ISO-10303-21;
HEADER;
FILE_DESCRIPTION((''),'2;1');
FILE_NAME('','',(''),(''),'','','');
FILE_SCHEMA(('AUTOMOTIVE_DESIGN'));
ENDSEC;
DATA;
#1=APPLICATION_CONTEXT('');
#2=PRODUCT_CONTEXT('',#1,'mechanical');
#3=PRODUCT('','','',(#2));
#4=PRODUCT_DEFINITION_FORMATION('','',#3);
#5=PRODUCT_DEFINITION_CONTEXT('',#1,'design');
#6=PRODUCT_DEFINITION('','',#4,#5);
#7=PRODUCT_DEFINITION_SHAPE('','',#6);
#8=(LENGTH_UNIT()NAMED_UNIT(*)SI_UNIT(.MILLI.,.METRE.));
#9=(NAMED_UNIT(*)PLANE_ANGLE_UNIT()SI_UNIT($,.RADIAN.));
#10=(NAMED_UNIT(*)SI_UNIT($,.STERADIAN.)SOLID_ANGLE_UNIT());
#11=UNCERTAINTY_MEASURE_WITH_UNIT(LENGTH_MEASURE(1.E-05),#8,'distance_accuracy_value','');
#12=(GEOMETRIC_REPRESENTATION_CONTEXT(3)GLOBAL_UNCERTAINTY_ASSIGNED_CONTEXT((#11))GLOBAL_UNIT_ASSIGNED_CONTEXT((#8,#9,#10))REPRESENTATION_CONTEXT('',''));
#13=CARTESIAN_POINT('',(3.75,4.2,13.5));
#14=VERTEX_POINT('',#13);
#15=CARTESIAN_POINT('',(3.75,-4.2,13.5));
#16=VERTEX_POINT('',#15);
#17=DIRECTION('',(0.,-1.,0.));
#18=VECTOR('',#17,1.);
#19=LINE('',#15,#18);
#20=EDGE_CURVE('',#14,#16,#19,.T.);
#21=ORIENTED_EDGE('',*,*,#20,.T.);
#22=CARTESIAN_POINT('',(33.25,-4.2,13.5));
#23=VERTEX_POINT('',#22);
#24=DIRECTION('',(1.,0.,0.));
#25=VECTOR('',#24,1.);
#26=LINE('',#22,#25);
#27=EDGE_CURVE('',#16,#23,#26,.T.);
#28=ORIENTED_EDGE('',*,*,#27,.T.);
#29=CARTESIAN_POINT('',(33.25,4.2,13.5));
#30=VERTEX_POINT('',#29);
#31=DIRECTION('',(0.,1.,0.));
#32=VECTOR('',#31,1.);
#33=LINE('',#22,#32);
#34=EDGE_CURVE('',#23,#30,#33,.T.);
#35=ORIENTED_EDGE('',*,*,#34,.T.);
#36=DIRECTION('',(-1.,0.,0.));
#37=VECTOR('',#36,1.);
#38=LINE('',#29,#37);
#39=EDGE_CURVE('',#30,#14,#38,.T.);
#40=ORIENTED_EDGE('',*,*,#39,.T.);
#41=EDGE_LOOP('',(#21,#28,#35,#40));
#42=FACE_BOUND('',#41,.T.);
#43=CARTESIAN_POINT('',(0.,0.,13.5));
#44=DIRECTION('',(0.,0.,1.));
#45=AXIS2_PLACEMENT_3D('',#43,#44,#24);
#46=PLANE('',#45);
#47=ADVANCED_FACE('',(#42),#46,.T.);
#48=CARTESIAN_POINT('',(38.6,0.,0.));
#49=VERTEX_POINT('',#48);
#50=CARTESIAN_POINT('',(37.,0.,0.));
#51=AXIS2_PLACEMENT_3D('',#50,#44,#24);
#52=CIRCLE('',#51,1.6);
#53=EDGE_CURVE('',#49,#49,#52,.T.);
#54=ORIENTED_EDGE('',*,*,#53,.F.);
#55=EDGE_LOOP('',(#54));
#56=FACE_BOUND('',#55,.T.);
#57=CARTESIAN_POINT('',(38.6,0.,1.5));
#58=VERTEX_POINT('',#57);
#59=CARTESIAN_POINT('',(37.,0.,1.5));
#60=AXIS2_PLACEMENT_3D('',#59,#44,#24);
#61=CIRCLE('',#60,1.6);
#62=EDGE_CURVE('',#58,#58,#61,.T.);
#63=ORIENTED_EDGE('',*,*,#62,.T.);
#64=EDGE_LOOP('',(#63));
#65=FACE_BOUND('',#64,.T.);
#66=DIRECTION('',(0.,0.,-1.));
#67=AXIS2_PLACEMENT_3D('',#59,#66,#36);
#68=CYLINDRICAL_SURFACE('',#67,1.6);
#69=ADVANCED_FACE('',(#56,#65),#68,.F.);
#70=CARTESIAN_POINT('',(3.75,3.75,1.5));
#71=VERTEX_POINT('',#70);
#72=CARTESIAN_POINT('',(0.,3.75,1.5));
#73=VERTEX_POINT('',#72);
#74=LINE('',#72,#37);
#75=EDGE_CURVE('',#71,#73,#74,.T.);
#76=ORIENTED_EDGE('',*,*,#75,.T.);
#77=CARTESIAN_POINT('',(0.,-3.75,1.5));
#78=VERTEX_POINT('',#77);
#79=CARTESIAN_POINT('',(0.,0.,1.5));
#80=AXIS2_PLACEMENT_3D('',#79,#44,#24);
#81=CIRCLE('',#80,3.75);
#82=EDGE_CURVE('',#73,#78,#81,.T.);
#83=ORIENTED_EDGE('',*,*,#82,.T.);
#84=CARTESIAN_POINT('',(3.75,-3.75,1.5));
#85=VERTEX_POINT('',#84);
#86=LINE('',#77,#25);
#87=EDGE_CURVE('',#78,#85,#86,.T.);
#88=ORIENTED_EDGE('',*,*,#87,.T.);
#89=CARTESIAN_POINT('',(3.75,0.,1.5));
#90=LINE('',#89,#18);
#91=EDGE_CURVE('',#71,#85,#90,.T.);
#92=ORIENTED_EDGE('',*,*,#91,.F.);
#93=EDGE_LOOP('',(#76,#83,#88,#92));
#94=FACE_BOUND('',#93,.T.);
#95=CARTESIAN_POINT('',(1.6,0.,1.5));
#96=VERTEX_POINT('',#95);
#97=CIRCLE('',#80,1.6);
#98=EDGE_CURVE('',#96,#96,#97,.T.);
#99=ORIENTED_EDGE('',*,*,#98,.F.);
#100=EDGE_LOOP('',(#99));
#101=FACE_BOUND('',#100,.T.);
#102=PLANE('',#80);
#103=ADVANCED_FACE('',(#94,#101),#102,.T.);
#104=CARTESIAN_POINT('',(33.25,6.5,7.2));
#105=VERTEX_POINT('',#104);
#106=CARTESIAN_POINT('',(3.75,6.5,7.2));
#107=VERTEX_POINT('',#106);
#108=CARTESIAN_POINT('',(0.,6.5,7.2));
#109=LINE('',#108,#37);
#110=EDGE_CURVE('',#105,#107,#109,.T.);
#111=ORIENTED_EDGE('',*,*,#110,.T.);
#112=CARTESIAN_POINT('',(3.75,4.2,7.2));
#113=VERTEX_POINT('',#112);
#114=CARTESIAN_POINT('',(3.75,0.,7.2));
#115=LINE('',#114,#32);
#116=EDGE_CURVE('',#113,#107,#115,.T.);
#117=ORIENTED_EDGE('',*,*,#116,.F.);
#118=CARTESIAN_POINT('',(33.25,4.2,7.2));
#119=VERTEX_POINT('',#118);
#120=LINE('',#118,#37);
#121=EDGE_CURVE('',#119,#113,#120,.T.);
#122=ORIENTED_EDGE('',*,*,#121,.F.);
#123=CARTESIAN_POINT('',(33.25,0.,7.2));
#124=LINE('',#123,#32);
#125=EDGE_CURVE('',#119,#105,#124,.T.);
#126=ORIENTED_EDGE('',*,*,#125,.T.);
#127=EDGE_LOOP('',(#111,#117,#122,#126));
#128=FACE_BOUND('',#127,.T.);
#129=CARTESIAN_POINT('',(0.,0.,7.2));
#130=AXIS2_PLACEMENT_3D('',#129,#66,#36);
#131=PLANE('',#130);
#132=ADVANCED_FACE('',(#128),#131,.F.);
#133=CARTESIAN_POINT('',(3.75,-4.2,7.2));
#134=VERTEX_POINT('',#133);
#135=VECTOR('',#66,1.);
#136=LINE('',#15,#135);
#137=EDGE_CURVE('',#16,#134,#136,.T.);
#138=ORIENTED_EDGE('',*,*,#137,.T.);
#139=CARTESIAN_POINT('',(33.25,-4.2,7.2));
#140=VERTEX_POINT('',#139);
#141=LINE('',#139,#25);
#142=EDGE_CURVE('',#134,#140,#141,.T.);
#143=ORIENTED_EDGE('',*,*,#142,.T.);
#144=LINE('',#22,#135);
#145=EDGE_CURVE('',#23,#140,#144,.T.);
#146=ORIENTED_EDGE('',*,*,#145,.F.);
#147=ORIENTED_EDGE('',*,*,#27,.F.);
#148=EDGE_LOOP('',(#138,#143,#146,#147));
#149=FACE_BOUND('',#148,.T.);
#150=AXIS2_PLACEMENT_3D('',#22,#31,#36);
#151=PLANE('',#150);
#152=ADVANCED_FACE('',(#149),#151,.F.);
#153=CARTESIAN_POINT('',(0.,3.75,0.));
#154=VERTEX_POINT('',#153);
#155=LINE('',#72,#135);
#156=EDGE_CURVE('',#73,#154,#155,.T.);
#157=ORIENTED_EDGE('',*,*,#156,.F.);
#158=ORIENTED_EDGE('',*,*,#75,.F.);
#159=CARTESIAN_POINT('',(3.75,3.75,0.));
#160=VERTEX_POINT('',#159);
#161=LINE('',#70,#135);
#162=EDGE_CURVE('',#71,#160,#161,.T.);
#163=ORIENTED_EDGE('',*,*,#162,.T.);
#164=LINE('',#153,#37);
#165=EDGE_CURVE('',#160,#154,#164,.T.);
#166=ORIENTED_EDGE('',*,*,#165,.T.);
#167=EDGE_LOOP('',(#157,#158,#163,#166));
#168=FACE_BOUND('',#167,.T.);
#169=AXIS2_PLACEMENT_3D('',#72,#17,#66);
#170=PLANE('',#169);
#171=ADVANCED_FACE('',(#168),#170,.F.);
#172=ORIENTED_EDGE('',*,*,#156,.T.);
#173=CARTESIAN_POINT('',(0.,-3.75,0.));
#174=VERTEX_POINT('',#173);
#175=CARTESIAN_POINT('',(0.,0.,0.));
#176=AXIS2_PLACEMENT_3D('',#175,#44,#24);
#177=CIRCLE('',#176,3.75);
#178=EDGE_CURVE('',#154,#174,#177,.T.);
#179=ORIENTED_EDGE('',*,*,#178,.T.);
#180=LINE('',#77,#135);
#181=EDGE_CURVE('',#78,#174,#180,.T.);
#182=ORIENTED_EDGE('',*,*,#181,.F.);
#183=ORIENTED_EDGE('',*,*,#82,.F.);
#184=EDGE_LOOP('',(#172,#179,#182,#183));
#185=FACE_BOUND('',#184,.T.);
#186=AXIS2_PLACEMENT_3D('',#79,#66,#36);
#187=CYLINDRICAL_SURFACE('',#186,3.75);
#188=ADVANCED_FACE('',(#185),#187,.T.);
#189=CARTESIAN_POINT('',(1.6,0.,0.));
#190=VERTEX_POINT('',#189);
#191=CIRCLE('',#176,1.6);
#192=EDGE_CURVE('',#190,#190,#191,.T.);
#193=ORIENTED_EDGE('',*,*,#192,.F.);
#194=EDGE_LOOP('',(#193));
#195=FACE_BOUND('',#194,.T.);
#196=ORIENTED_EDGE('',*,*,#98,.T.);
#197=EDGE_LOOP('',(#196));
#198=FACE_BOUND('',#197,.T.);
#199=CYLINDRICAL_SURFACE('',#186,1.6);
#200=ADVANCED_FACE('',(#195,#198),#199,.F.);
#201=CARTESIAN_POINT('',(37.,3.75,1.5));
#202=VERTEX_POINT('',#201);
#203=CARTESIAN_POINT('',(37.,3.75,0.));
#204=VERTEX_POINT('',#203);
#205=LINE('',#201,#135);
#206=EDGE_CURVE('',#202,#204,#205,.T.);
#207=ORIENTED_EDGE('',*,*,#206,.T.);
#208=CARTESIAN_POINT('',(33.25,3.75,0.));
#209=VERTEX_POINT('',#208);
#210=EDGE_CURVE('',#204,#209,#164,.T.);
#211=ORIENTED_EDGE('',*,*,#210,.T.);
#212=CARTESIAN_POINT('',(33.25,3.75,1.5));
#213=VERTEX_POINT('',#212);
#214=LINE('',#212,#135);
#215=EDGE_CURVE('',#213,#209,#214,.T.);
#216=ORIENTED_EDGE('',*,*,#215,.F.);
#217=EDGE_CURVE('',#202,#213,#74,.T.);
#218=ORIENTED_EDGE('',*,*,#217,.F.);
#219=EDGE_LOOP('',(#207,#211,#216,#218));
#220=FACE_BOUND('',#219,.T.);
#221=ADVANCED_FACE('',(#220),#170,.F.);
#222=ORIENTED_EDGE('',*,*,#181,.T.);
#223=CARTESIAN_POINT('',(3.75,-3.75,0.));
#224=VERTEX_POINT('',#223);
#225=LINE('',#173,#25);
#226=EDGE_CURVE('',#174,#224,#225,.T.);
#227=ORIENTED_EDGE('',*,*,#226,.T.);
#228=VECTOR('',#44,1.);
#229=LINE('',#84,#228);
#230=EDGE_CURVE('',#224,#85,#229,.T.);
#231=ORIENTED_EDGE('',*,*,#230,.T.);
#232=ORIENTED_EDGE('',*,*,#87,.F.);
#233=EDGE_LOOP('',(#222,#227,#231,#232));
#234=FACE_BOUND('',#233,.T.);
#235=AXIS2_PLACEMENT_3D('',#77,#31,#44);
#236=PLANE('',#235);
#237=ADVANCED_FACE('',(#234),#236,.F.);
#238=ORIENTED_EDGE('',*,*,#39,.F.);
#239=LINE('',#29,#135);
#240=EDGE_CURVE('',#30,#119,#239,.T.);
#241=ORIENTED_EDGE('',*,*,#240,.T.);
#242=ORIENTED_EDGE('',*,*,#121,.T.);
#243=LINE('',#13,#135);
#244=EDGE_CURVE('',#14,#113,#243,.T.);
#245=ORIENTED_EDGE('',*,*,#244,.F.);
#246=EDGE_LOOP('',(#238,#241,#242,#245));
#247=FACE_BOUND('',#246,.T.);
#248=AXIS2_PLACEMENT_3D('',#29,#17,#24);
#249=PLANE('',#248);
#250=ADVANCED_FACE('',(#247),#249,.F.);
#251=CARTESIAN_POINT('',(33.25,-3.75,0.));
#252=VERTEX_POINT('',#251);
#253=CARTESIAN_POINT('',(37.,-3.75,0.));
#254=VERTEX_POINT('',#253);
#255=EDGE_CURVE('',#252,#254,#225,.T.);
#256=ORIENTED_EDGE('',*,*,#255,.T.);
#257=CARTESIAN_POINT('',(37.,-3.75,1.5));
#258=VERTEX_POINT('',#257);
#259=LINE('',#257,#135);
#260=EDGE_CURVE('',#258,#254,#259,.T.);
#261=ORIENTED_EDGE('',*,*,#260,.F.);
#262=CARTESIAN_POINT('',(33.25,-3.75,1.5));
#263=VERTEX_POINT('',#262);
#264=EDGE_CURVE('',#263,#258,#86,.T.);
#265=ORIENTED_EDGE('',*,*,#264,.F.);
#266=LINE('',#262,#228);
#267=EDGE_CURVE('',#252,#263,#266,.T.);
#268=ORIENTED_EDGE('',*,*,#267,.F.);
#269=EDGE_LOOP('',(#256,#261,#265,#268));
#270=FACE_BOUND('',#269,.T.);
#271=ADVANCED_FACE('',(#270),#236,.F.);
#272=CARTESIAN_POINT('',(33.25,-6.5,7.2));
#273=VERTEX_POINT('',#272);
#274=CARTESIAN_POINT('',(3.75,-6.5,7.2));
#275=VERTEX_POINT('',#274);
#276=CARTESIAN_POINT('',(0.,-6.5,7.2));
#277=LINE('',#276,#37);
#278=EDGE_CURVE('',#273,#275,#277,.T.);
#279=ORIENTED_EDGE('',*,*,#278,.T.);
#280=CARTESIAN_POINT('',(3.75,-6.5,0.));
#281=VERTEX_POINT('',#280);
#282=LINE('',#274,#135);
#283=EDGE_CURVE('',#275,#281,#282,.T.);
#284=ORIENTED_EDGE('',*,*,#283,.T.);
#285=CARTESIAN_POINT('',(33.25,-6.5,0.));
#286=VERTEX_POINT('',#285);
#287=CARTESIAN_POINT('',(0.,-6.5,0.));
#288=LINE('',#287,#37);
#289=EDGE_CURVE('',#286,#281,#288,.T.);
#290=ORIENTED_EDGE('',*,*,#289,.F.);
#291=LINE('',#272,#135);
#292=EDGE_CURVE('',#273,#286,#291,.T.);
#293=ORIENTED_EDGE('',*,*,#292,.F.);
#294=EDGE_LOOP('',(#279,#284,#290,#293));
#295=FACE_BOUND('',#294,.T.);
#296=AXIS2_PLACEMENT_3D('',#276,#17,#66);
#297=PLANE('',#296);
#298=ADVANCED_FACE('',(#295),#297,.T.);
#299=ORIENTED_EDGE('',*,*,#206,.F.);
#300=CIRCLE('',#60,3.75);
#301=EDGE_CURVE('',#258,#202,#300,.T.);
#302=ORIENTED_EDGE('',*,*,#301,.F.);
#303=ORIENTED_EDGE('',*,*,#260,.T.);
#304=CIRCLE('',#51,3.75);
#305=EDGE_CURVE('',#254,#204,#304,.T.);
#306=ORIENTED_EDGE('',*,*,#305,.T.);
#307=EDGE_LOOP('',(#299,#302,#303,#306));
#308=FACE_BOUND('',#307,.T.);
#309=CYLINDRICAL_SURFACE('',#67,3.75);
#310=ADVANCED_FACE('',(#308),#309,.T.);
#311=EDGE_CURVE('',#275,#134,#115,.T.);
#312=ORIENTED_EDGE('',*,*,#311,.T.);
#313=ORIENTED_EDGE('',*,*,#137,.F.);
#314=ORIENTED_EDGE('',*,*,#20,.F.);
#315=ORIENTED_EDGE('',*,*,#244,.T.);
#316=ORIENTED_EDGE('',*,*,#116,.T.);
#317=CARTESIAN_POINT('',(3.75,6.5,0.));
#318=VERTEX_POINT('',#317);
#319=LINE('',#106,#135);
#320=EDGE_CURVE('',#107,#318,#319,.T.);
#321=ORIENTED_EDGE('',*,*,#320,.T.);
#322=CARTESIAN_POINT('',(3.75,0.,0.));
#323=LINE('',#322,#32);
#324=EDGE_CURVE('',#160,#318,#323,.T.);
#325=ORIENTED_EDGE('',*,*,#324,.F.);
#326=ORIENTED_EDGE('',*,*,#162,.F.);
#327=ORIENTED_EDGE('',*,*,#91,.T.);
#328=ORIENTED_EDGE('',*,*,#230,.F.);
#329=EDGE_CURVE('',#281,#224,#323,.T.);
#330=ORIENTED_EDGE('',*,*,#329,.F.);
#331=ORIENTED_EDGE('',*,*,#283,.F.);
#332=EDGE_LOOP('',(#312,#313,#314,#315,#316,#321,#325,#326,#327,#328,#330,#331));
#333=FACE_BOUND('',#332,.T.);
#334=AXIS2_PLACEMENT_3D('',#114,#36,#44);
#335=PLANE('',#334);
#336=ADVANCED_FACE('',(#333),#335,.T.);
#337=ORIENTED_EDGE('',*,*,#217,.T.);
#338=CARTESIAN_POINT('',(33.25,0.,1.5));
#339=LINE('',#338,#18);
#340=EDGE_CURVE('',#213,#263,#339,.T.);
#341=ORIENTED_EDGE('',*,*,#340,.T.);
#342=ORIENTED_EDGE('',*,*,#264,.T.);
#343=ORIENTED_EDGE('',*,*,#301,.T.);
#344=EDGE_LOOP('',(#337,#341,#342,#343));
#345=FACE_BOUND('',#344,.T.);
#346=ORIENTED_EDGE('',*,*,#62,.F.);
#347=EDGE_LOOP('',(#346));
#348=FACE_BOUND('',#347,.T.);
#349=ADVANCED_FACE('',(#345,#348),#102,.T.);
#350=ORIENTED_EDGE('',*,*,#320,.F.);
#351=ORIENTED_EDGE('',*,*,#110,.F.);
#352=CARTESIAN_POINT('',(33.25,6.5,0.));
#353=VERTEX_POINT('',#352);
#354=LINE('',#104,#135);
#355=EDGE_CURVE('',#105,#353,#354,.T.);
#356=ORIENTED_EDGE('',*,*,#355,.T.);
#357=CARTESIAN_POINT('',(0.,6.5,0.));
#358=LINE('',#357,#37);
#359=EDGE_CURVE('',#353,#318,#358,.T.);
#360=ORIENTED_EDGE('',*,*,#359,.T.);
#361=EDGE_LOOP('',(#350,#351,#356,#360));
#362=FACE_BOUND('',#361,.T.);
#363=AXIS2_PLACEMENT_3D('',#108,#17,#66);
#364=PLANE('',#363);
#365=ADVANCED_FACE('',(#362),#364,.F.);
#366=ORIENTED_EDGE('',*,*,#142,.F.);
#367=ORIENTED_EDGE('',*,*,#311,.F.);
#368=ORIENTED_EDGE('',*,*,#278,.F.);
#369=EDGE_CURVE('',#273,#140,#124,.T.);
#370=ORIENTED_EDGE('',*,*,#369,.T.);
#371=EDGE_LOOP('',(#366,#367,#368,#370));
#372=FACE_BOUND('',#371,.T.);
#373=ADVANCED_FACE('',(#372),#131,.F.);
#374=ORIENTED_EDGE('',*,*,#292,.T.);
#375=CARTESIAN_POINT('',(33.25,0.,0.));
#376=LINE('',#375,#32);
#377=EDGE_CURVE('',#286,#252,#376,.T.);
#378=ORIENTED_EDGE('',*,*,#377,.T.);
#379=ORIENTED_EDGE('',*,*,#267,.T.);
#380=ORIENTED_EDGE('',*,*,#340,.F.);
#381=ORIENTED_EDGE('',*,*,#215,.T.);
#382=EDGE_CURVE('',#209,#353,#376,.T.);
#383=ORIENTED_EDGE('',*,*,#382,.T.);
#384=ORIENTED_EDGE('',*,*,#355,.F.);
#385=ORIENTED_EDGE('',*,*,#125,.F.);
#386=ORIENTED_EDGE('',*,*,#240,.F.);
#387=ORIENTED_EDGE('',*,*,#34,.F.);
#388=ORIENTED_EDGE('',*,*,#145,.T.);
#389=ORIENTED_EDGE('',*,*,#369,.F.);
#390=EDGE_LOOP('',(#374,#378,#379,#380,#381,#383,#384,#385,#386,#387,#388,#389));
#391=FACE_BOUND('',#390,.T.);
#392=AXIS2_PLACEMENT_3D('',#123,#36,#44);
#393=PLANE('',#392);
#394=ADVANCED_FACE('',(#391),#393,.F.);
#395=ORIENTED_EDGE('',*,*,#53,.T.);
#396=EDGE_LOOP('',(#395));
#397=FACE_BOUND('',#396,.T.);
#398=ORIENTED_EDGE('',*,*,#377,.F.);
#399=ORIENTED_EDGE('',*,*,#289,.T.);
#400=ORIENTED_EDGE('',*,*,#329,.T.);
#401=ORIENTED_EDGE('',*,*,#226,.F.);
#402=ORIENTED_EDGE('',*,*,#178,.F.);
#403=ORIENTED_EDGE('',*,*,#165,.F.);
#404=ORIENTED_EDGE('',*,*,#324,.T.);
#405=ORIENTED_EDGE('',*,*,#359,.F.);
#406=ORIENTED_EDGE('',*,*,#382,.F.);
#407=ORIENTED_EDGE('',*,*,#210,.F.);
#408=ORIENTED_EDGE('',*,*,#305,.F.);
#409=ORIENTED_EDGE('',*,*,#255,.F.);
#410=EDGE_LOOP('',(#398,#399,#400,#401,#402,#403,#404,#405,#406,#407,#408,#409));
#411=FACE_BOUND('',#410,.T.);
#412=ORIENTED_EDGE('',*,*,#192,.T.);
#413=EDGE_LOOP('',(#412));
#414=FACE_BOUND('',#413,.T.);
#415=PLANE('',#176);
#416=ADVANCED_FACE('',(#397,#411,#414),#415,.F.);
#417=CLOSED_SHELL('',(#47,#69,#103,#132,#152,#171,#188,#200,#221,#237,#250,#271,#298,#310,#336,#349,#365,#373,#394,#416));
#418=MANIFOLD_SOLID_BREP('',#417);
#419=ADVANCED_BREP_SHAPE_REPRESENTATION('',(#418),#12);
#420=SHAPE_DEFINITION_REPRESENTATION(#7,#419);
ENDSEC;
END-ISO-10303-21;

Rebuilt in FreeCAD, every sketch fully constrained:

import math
import FreeCAD as App
import Part
import Sketcher

V = App.Vector
Q = App.Units.Quantity

doc = App.newDocument("Part")
body = doc.addObject("PartDesign::Body", "Body")

# Sketch on XY plane
sketch1 = body.newObject("Sketcher::SketchObject", "Sketch")
sketch1.AttachmentSupport = (doc.getObject("XY_Plane"), [""])
sketch1.MapMode = "FlatFace"
sketch1.addGeometry(Part.LineSegment(V(37, 3.75, 0), V(0, 3.75, 0)), False)
sketch1.addGeometry(Part.ArcOfCircle(Part.Circle(V(0, 0, 0), V(0, 0, 1), 3.75), math.radians(90), math.radians(270)), False)
sketch1.addGeometry(Part.LineSegment(V(0, -3.75, 0), V(37, -3.75, 0)), False)
sketch1.addGeometry(Part.ArcOfCircle(Part.Circle(V(37, 0, 0), V(0, 0, 1), 3.75), math.radians(-90), math.radians(90)), False)
sketch1.addGeometry(Part.Circle(V(37, 0, 0), V(0, 0, 1), 1.6), False)
sketch1.addGeometry(Part.Circle(V(0, 0, 0), V(0, 0, 1), 1.6), False)
sketch1.addConstraint(Sketcher.Constraint("Tangent", 0, 2, 1, 1))
sketch1.addConstraint(Sketcher.Constraint("Tangent", 1, 2, 2, 1))
sketch1.addConstraint(Sketcher.Constraint("Tangent", 2, 2, 3, 1))
sketch1.addConstraint(Sketcher.Constraint("Tangent", 3, 2, 0, 1))
sketch1.addConstraint(Sketcher.Constraint("Horizontal", 0))
sketch1.addConstraint(Sketcher.Constraint("Horizontal", 2))
sketch1.addConstraint(Sketcher.Constraint("Coincident", 1, 3, -1, 1))
sketch1.addConstraint(Sketcher.Constraint("Coincident", 5, 3, -1, 1))
sketch1.addConstraint(Sketcher.Constraint("Coincident", 4, 3, 3, 3))
sketch1.addConstraint(Sketcher.Constraint("Equal", 4, 5))
sketch1.addConstraint(Sketcher.Constraint("Diameter", 4, Q("3.2 mm")))
sketch1.addConstraint(Sketcher.Constraint("DistanceX", 0, 2, 0, 1, Q("37 mm")))
sketch1.addConstraint(Sketcher.Constraint("Radius", 1, Q("3.75 mm")))
pad1 = body.newObject("PartDesign::Pad", "Pad")
pad1.Profile = sketch1
pad1.Length = 1.5

# Sketch on XY plane
sketch2 = body.newObject("Sketcher::SketchObject", "Sketch001")
sketch2.AttachmentSupport = (doc.getObject("XY_Plane"), [""])
sketch2.MapMode = "FlatFace"
sketch2.addGeometry(Part.LineSegment(V(3.75, 6.5, 0), V(33.25, 6.5, 0)), False)
sketch2.addGeometry(Part.LineSegment(V(33.25, 6.5, 0), V(33.25, -6.5, 0)), False)
sketch2.addGeometry(Part.LineSegment(V(33.25, -6.5, 0), V(3.75, -6.5, 0)), False)
sketch2.addGeometry(Part.LineSegment(V(3.75, -6.5, 0), V(3.75, 6.5, 0)), False)
sketch2.addConstraint(Sketcher.Constraint("Coincident", 0, 2, 1, 1))
sketch2.addConstraint(Sketcher.Constraint("Coincident", 1, 2, 2, 1))
sketch2.addConstraint(Sketcher.Constraint("Coincident", 2, 2, 3, 1))
sketch2.addConstraint(Sketcher.Constraint("Coincident", 3, 2, 0, 1))
sketch2.addConstraint(Sketcher.Constraint("Horizontal", 0))
sketch2.addConstraint(Sketcher.Constraint("Vertical", 1))
sketch2.addConstraint(Sketcher.Constraint("Horizontal", 2))
sketch2.addConstraint(Sketcher.Constraint("Vertical", 3))
sketch2.addConstraint(Sketcher.Constraint("DistanceY", 1, 2, 1, 1, Q("13 mm")))
sketch2.addConstraint(Sketcher.Constraint("DistanceX", 0, 1, 0, 2, Q("29.5 mm")))
sketch2.addConstraint(Sketcher.Constraint("DistanceY", -1, 1, 0, 2, Q("6.5 mm")))
sketch2.addConstraint(Sketcher.Constraint("DistanceX", -1, 1, 0, 2, Q("33.25 mm")))
pad2 = body.newObject("PartDesign::Pad", "Pad001")
pad2.Profile = sketch2
pad2.Length = 7.2

# Sketch on XY plane
sketch3 = body.newObject("Sketcher::SketchObject", "Sketch002")
sketch3.AttachmentSupport = (doc.getObject("XY_Plane"), [""])
sketch3.MapMode = "FlatFace"
sketch3.AttachmentOffset = App.Placement(V(0, 0, 7.2), App.Rotation())
sketch3.addGeometry(Part.LineSegment(V(3.75, 4.2, 0), V(3.75, -4.2, 0)), False)
sketch3.addGeometry(Part.LineSegment(V(3.75, -4.2, 0), V(33.25, -4.2, 0)), False)
sketch3.addGeometry(Part.LineSegment(V(33.25, -4.2, 0), V(33.25, 4.2, 0)), False)
sketch3.addGeometry(Part.LineSegment(V(33.25, 4.2, 0), V(3.75, 4.2, 0)), False)
sketch3.addConstraint(Sketcher.Constraint("Coincident", 0, 2, 1, 1))
sketch3.addConstraint(Sketcher.Constraint("Coincident", 1, 2, 2, 1))
sketch3.addConstraint(Sketcher.Constraint("Coincident", 2, 2, 3, 1))
sketch3.addConstraint(Sketcher.Constraint("Coincident", 3, 2, 0, 1))
sketch3.addConstraint(Sketcher.Constraint("Vertical", 0))
sketch3.addConstraint(Sketcher.Constraint("Horizontal", 1))
sketch3.addConstraint(Sketcher.Constraint("Vertical", 2))
sketch3.addConstraint(Sketcher.Constraint("Horizontal", 3))
sketch3.addConstraint(Sketcher.Constraint("DistanceX", 1, 1, 1, 2, Q("29.5 mm")))
sketch3.addConstraint(Sketcher.Constraint("DistanceY", 0, 2, 0, 1, Q("8.4 mm")))
sketch3.addConstraint(Sketcher.Constraint("DistanceY", 0, 2, -1, 1, Q("4.2 mm")))
sketch3.addConstraint(Sketcher.Constraint("DistanceX", -1, 1, 0, 2, Q("3.75 mm")))
pad3 = body.newObject("PartDesign::Pad", "Pad002")
pad3.Profile = sketch3
pad3.Length = 6.3

doc.recompute()
